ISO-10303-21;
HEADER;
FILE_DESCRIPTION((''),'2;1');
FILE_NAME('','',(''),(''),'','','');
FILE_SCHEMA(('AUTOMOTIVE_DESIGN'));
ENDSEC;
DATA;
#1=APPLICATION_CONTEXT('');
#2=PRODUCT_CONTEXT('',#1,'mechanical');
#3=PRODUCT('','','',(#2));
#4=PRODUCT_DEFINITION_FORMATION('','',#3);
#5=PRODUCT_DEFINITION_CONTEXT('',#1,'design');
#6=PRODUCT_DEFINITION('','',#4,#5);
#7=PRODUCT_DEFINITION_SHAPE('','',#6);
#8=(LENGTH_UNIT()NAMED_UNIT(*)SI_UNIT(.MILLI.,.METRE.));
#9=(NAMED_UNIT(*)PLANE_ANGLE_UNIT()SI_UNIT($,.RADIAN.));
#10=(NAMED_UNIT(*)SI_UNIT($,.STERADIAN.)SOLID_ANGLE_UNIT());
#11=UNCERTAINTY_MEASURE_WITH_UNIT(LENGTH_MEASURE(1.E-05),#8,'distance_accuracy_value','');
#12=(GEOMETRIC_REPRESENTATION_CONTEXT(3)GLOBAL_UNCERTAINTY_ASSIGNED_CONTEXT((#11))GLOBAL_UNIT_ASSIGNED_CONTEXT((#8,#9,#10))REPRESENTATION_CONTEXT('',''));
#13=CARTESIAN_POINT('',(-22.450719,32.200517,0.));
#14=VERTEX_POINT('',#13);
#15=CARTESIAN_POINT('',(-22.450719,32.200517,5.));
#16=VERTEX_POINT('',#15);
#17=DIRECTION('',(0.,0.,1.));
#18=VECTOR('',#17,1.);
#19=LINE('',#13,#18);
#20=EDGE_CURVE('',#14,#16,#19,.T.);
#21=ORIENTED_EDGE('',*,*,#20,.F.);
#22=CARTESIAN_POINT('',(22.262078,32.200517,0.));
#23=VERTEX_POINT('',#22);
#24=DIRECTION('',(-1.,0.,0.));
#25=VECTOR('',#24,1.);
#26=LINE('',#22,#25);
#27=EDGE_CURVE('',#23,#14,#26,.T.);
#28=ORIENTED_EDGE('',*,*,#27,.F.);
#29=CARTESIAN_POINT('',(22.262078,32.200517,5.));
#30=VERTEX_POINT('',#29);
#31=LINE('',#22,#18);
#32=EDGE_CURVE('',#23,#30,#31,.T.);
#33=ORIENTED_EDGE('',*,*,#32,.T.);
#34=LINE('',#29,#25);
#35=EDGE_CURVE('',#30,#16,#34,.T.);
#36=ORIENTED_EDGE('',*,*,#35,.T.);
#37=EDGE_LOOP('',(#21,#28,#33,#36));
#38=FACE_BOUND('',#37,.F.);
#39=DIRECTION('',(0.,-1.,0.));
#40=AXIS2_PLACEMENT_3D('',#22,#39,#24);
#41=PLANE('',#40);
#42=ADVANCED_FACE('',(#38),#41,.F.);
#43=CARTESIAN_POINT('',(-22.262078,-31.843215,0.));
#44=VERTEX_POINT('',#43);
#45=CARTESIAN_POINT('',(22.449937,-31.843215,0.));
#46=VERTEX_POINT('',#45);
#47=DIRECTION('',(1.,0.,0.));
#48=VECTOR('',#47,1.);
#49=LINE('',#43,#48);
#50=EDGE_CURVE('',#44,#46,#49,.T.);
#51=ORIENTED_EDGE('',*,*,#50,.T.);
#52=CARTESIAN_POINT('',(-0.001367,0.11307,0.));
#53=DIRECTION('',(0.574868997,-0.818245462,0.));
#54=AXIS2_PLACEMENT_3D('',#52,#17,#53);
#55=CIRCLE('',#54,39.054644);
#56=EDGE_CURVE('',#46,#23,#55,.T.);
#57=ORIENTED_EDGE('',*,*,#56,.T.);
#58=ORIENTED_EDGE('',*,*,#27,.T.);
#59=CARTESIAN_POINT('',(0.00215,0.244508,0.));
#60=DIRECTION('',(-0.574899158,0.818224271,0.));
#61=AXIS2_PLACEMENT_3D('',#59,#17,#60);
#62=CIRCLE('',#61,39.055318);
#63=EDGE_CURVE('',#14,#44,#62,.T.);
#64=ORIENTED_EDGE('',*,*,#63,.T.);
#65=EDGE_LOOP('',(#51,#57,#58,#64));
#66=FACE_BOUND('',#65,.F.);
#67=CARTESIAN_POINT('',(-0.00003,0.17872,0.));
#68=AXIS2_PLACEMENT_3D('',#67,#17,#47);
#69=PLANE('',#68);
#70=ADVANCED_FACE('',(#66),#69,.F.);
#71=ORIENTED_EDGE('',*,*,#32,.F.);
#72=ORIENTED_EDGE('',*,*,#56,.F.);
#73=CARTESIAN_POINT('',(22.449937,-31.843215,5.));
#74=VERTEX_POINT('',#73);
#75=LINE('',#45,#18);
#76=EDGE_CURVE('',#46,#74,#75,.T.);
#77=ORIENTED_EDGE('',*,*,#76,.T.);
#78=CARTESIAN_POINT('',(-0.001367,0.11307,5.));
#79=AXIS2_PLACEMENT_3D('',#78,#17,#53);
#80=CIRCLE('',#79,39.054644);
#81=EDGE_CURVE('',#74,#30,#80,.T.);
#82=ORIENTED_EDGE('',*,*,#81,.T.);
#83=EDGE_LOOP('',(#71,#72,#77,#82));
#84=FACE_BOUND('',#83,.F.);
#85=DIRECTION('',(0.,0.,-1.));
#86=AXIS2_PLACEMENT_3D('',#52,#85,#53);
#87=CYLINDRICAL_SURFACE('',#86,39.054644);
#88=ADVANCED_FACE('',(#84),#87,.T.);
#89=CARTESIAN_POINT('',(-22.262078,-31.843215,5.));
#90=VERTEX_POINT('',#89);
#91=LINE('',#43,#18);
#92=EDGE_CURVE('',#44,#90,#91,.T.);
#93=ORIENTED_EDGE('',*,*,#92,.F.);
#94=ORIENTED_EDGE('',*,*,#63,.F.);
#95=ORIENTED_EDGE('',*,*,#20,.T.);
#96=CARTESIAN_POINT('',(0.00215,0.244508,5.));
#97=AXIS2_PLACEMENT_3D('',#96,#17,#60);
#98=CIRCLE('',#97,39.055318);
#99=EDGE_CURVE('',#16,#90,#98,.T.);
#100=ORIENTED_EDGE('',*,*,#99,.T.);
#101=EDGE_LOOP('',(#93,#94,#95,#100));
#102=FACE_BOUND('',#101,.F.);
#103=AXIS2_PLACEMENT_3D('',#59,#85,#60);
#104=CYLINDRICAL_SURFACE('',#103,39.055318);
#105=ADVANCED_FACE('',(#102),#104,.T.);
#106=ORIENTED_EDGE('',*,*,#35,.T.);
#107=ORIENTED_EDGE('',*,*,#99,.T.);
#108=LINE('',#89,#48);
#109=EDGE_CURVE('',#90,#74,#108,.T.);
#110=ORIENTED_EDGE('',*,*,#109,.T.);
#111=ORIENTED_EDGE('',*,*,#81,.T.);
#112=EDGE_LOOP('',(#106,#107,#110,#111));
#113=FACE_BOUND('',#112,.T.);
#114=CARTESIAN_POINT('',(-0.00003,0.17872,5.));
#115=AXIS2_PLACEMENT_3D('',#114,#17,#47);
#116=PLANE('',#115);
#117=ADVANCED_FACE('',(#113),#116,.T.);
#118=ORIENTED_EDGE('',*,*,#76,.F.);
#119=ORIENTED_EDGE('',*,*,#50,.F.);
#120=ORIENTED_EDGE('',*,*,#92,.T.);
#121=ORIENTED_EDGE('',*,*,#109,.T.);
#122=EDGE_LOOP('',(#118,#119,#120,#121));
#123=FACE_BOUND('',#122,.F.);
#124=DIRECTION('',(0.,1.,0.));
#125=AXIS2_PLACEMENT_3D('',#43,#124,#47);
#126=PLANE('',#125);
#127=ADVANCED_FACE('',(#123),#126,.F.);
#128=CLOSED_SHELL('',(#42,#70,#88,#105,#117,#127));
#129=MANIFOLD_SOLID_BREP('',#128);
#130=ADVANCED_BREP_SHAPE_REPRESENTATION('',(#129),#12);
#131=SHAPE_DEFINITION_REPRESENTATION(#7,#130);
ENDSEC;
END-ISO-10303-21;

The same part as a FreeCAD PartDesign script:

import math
import FreeCAD as App
import Part
import Sketcher
Q = App.Units.Quantity

doc = App.newDocument("Part")
body = doc.addObject("PartDesign::Body", "Body")

# Sketch on XY plane
sketch1 = doc.addObject("Sketcher::SketchObject", "Sketch")
body.addObject(sketch1)
sketch1.AttachmentSupport = (doc.XY_Plane, [""])
sketch1.MapMode = "FlatFace"
sketch1.addGeometry([
    Part.ArcOfCircle(Part.Circle(App.Vector(0, 0, 0), App.Vector(0, 0, 1), 39), math.radians(-55), math.radians(55)),
    Part.LineSegment(App.Vector(22, 32, 0), App.Vector(-22, 32, 0)),
    Part.ArcOfCircle(Part.Circle(App.Vector(0, 0, 0), App.Vector(0, 0, 1), 39), math.radians(125), math.radians(235)),
    Part.LineSegment(App.Vector(-22, -32, 0), App.Vector(22, -32, 0)),
], False)
sketch1.addConstraint([
    Sketcher.Constraint("Coincident", 0, 2, 1, 1),
    Sketcher.Constraint("Coincident", 1, 2, 2, 1),
    Sketcher.Constraint("Coincident", 2, 2, 3, 1),
    Sketcher.Constraint("Coincident", 3, 2, 0, 1),
    Sketcher.Constraint("Horizontal", 1),
    Sketcher.Constraint("Horizontal", 3),
    Sketcher.Constraint("Radius", 0, Q("39.054644 mm")),
    Sketcher.Constraint("Radius", 2, Q("39.055318 mm")),
    Sketcher.Constraint("DistanceX", 1, 2, 1, 1, Q("44.712797 mm")),
    Sketcher.Constraint("DistanceX", 3, 1, 3, 2, Q("44.712015 mm")),
    Sketcher.Constraint("DistanceY", -1, 1, 0, 3, Q("0.11307 mm")),
    Sketcher.Constraint("DistanceX", -1, 1, 2, 3, Q("0.00215 mm")),
    Sketcher.Constraint("DistanceY", -1, 1, 2, 3, Q("0.244508 mm")),
    Sketcher.Constraint("DistanceX", 1, 2, -1, 1, Q("22.450719 mm")),
])
pad1 = doc.addObject("PartDesign::Pad", "Pad")
body.addObject(pad1)
pad1.Profile = sketch1
pad1.Length = 5

doc.recompute()
